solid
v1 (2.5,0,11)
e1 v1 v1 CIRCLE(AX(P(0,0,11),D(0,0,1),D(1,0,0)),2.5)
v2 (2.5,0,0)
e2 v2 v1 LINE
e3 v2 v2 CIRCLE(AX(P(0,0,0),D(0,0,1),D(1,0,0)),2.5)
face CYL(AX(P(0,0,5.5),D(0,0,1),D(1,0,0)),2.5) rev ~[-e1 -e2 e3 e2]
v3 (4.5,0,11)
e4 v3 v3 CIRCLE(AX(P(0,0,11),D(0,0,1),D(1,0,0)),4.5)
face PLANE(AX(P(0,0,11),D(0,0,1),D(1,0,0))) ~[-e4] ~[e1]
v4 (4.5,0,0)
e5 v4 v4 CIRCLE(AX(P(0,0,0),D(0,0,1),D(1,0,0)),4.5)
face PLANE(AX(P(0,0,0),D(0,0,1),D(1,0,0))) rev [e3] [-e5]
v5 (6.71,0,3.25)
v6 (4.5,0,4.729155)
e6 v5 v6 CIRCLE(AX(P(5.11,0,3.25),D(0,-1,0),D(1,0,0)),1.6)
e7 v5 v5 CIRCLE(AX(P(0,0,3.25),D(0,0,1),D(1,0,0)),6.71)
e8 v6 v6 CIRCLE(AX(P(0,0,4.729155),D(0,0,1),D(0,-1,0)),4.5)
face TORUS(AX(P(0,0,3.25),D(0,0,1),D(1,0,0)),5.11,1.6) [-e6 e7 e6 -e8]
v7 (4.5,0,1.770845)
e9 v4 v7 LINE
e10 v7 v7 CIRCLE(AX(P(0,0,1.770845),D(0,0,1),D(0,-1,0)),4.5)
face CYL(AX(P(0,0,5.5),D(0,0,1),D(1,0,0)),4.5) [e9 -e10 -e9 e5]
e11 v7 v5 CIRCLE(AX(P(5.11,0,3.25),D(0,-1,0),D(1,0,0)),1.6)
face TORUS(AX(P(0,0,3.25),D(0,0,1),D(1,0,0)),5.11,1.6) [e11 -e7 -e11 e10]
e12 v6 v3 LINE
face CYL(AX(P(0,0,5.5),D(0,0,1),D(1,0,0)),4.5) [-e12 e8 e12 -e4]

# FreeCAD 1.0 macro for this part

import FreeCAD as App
import Part
import Sketcher
from FreeCAD import Vector
Q = App.Units.Quantity


def add_polygon(sketch, points):
    """Adds a closed chain of lines whose ends are joined by coincident constraints."""
    first, n = sketch.GeometryCount, len(points)
    for a, b in zip(points, points[1:] + points[:1]):
        sketch.addGeometry(Part.LineSegment(App.Vector(*a, 0), App.Vector(*b, 0)), False)
    for i in range(n):
        sketch.addConstraint(Sketcher.Constraint("Coincident", first + i, 2, first + (i + 1) % n, 1))

doc = App.newDocument("Part")
body = doc.addObject("PartDesign::Body", "Body")

# Sketch on XZ plane
sketch1 = doc.addObject("Sketcher::SketchObject", "Sketch")
body.addObject(sketch1)
sketch1.AttachmentSupport = (doc.XZ_Plane, [""])
sketch1.MapMode = "FlatFace"
add_polygon(sketch1, [(2.5, 11), (2.5, 0), (4.5, 0), (4.5, 11)])  # lines 0-3
sketch1.addConstraint([
    Sketcher.Constraint("Vertical", 0),
    Sketcher.Constraint("Horizontal", 1),
    Sketcher.Constraint("Vertical", 2),
    Sketcher.Constraint("Horizontal", 3),
    Sketcher.Constraint("PointOnObject", 0, 2, -1),
    Sketcher.Constraint("DistanceX", 1, 1, 1, 2, Q("2 mm")),
    Sketcher.Constraint("DistanceY", 0, 2, 0, 1, Q("11 mm")),
    Sketcher.Constraint("DistanceX", -1, 1, 0, 2, Q("2.5 mm")),
])
revolution = doc.addObject("PartDesign::Revolution", "Revolution")
body.addObject(revolution)
revolution.Profile = sketch1
revolution.ReferenceAxis = (sketch1, ["V_Axis"])
revolution.Angle = 360

# Sketch on XZ plane
sketch2 = doc.addObject("Sketcher::SketchObject", "Sketch001")
body.addObject(sketch2)
sketch2.AttachmentSupport = (doc.XZ_Plane, [""])
sketch2.MapMode = "FlatFace"
sketch2.addGeometry(Part.Circle(Vector(5.11, 3.25, 0), Vector(0, 0, 1), 1.6), False)
sketch2.addConstraint([
    Sketcher.Constraint("Diameter", 0, Q("3.2 mm")),
    Sketcher.Constraint("DistanceX", -1, 1, 0, 3, Q("5.11 mm")),
    Sketcher.Constraint("DistanceY", -1, 1, 0, 3, Q("3.25 mm")),
])
revolution2 = doc.addObject("PartDesign::Revolution", "Revolution001")
body.addObject(revolution2)
revolution2.Profile = sketch2
revolution2.ReferenceAxis = (sketch2, ["V_Axis"])
revolution2.Angle = 360

doc.recompute()
